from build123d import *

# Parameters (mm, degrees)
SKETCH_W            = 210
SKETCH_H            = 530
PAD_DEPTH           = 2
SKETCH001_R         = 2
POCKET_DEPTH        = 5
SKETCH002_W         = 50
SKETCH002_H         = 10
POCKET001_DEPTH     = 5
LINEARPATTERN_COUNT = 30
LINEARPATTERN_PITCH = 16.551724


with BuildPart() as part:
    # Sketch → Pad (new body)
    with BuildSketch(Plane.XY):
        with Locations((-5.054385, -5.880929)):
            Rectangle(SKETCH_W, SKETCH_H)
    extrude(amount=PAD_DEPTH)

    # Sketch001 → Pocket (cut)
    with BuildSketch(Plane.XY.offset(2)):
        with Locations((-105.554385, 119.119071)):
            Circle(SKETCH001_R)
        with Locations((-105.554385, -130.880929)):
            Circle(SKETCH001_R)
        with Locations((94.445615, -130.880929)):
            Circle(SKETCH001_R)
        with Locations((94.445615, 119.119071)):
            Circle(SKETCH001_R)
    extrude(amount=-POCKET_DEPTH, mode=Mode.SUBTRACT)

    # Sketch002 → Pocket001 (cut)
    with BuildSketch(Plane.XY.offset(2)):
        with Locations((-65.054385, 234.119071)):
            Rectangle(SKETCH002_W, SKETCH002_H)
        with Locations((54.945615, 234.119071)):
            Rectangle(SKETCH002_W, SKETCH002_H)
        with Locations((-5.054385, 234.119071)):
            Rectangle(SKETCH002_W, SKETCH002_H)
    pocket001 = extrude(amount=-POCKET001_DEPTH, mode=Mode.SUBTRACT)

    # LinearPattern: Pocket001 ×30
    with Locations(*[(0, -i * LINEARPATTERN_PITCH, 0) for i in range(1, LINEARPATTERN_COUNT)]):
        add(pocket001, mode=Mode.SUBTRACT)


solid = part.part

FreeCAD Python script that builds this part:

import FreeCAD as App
import Part
import Sketcher

doc = App.newDocument("Part")
body = doc.addObject("PartDesign::Body", "Body")

# Sketch on XY plane
sketch1 = body.newObject("Sketcher::SketchObject", "Sketch")
sketch1.AttachmentSupport = (doc.getObject("XY_Plane"), [""])
sketch1.MapMode = "FlatFace"
sketch1.addGeometry([
    Part.LineSegment(App.Vector(-110.054385, 259.119071, 0), App.Vector(-110.054385, -270.880929, 0)),
    Part.LineSegment(App.Vector(-110.054385, -270.880929, 0), App.Vector(99.945615, -270.880929, 0)),
    Part.LineSegment(App.Vector(99.945615, -270.880929, 0), App.Vector(99.945615, 259.119071, 0)),
    Part.LineSegment(App.Vector(99.945615, 259.119071, 0), App.Vector(-110.054385, 259.119071, 0)),
], False)
sketch1.addConstraint([
    Sketcher.Constraint("Coincident", 0, 2, 1, 1),
    Sketcher.Constraint("Coincident", 1, 2, 2, 1),
    Sketcher.Constraint("Coincident", 2, 2, 3, 1),
    Sketcher.Constraint("Coincident", 3, 2, 0, 1),
    Sketcher.Constraint("Vertical", 0),
    Sketcher.Constraint("Horizontal", 1),
    Sketcher.Constraint("Vertical", 2),
    Sketcher.Constraint("Horizontal", 3),
    Sketcher.Constraint("DistanceX", 1, 1, 1, 2, 210.0),
    Sketcher.Constraint("DistanceY", 0, 2, 0, 1, 530.0),
    Sketcher.Constraint("DistanceY", 0, 2, -1, 1, 270.880929),
    Sketcher.Constraint("DistanceX", 0, 2, -1, 1, 110.054385),
])
pad1 = body.newObject("PartDesign::Pad", "Pad")
pad1.Profile = sketch1
pad1.Length = 2

# Sketch on XY plane
sketch2 = body.newObject("Sketcher::SketchObject", "Sketch001")
sketch2.AttachmentSupport = (doc.getObject("XY_Plane"), [""])
sketch2.MapMode = "FlatFace"
sketch2.AttachmentOffset = App.Placement(App.Vector(0, 0, 2), App.Rotation())
sketch2.addGeometry([
    Part.Circle(App.Vector(-105.554385, 119.119071, 0), App.Vector(0, 0, 1), 2),
    Part.Circle(App.Vector(-105.554385, -130.880929, 0), App.Vector(0, 0, 1), 2),
    Part.Circle(App.Vector(94.445615, -130.880929, 0), App.Vector(0, 0, 1), 2),
    Part.Circle(App.Vector(94.445615, 119.119071, 0), App.Vector(0, 0, 1), 2),
], False)
sketch2.addConstraint([
    Sketcher.Constraint("Equal", 0, 1),
    Sketcher.Constraint("Equal", 1, 2),
    Sketcher.Constraint("Equal", 2, 3),
    Sketcher.Constraint("Horizontal", 1, 3, 2, 3),
    Sketcher.Constraint("Horizontal", 0, 3, 3, 3),
    Sketcher.Constraint("Vertical", 0, 3, 1, 3),
    Sketcher.Constraint("Vertical", 2, 3, 3, 3),
    Sketcher.Constraint("Diameter", 0, 4.0),
    Sketcher.Constraint("DistanceY", 1, 3, 0, 3, 250.0),
    Sketcher.Constraint("DistanceX", 1, 3, 2, 3, 200.0),
    Sketcher.Constraint("DistanceY", -1, 1, 0, 3, 119.119071),
    Sketcher.Constraint("DistanceX", 0, 3, -1, 1, 105.554385),
])
pocket1 = body.newObject("PartDesign::Pocket", "Pocket")
pocket1.Profile = sketch2
pocket1.Length = 5

# Sketch on XY plane
sketch3 = body.newObject("Sketcher::SketchObject", "Sketch002")
sketch3.AttachmentSupport = (doc.getObject("XY_Plane"), [""])
sketch3.MapMode = "FlatFace"
sketch3.AttachmentOffset = App.Placement(App.Vector(0, 0, 2), App.Rotation())
sketch3.addGeometry([
    Part.LineSegment(App.Vector(-90.054385, 239.119071, 0), App.Vector(-90.054385, 229.119071, 0)),  # 0
    Part.LineSegment(App.Vector(-90.054385, 229.119071, 0), App.Vector(-40.054385, 229.119071, 0)),  # 1
    Part.LineSegment(App.Vector(-40.054385, 229.119071, 0), App.Vector(-40.054385, 239.119071, 0)),  # 2
    Part.LineSegment(App.Vector(-40.054385, 239.119071, 0), App.Vector(-90.054385, 239.119071, 0)),  # 3
    Part.LineSegment(App.Vector(29.945615, 239.119071, 0), App.Vector(29.945615, 229.119071, 0)),  # 4
    Part.LineSegment(App.Vector(29.945615, 229.119071, 0), App.Vector(79.945615, 229.119071, 0)),  # 5
    Part.LineSegment(App.Vector(79.945615, 229.119071, 0), App.Vector(79.945615, 239.119071, 0)),  # 6
    Part.LineSegment(App.Vector(79.945615, 239.119071, 0), App.Vector(29.945615, 239.119071, 0)),  # 7
    Part.LineSegment(App.Vector(-30.054385, 239.119071, 0), App.Vector(-30.054385, 229.119071, 0)),  # 8
    Part.LineSegment(App.Vector(-30.054385, 229.119071, 0), App.Vector(19.945615, 229.119071, 0)),  # 9
    Part.LineSegment(App.Vector(19.945615, 229.119071, 0), App.Vector(19.945615, 239.119071, 0)),  # 10
    Part.LineSegment(App.Vector(19.945615, 239.119071, 0), App.Vector(-30.054385, 239.119071, 0)),  # 11
], False)
sketch3.addConstraint([
    Sketcher.Constraint("Coincident", 0, 2, 1, 1),
    Sketcher.Constraint("Coincident", 1, 2, 2, 1),
    Sketcher.Constraint("Coincident", 2, 2, 3, 1),
    Sketcher.Constraint("Coincident", 3, 2, 0, 1),
    Sketcher.Constraint("Coincident", 4, 2, 5, 1),
    Sketcher.Constraint("Coincident", 5, 2, 6, 1),
    Sketcher.Constraint("Coincident", 6, 2, 7, 1),
    Sketcher.Constraint("Coincident", 7, 2, 4, 1),
    Sketcher.Constraint("Coincident", 8, 2, 9, 1),
    Sketcher.Constraint("Coincident", 9, 2, 10, 1),
    Sketcher.Constraint("Coincident", 10, 2, 11, 1),
    Sketcher.Constraint("Coincident", 11, 2, 8, 1),
    Sketcher.Constraint("Vertical", 0),
    Sketcher.Constraint("Horizontal", 1),
    Sketcher.Constraint("Vertical", 2),
    Sketcher.Constraint("Horizontal", 3),
    Sketcher.Constraint("Vertical", 4),
    Sketcher.Constraint("Horizontal", 5),
    Sketcher.Constraint("Vertical", 6),
    Sketcher.Constraint("Horizontal", 7),
    Sketcher.Constraint("Vertical", 8),
    Sketcher.Constraint("Horizontal", 9),
    Sketcher.Constraint("Vertical", 10),
    Sketcher.Constraint("Horizontal", 11),
    Sketcher.Constraint("Horizontal", 1, 2, 4, 2),
    Sketcher.Constraint("Horizontal", 3, 2, 6, 2),
    Sketcher.Constraint("Horizontal", 5, 2, 8, 2),
    Sketcher.Constraint("Horizontal", 7, 2, 10, 2),
    Sketcher.Constraint("Equal", 3, 5),
    Sketcher.Constraint("Equal", 7, 9),
    Sketcher.Constraint("DistanceX", 1, 1, 1, 2, 50.0),
    Sketcher.Constraint("DistanceY", 0, 2, 0, 1, 10.0),
    Sketcher.Constraint("DistanceX", 1, 2, 4, 2, 70.0),
    Sketcher.Constraint("DistanceX", 1, 2, 8, 2, 10.0),
    Sketcher.Constraint("DistanceY", -1, 1, 0, 2, 229.119071),
    Sketcher.Constraint("DistanceX", 0, 2, -1, 1, 90.054385),
])
pocket2 = body.newObject("PartDesign::Pocket", "Pocket001")
pocket2.Profile = sketch3
pocket2.Length = 5
doc.recompute()

linearpattern = body.newObject("PartDesign::LinearPattern", "LinearPattern")
linearpattern.Originals = [pocket2]
linearpattern.Direction = (doc.getObject("Y_Axis"), [""])
linearpattern.Mode = "offset"
linearpattern.Offset = 16.551724
linearpattern.Occurrences = 30
linearpattern.Reversed = True
body.Tip = linearpattern

doc.recompute()
